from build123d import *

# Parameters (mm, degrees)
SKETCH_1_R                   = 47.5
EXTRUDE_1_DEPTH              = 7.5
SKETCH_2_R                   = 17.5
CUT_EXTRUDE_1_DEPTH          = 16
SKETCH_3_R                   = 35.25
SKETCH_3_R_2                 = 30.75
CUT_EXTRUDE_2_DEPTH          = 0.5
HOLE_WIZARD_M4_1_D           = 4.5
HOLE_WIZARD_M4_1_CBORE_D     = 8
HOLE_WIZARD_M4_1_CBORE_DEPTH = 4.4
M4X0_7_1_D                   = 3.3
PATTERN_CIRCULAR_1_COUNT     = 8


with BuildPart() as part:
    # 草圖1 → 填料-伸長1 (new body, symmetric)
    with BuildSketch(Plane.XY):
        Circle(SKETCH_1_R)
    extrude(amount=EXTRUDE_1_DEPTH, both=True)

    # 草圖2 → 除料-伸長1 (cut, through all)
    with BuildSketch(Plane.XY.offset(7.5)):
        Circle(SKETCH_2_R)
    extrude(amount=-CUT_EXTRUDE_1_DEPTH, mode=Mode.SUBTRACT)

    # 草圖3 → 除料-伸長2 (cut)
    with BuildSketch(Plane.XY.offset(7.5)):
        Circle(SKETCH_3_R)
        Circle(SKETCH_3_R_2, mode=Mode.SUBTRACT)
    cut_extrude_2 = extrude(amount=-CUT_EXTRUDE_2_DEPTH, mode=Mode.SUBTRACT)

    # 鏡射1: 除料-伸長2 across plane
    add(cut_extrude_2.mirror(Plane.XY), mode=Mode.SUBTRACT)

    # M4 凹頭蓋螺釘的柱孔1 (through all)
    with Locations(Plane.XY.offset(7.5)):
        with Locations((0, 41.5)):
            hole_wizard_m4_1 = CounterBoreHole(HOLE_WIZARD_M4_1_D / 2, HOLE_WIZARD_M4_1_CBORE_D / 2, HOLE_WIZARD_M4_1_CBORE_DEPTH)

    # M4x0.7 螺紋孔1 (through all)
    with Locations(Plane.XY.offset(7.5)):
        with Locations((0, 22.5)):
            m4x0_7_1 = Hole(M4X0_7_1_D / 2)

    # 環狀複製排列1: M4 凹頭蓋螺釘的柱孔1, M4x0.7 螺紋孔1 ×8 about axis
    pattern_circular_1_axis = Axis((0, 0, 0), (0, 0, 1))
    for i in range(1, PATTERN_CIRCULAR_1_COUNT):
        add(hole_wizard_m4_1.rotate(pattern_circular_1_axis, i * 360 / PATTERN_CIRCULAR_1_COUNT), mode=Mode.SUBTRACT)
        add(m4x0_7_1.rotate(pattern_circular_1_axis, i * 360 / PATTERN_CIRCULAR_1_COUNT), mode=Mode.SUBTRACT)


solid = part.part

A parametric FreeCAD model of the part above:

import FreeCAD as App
import Part
import Sketcher
from FreeCAD import Vector
Q = App.Units.Quantity

doc = App.newDocument("Part")
body = doc.addObject("PartDesign::Body", "Body")

# Sketch on XY plane
sketch1 = doc.addObject("Sketcher::SketchObject", "Sketch")
body.addObject(sketch1)
sketch1.AttachmentSupport = (doc.XY_Plane, [""])
sketch1.MapMode = "FlatFace"
sketch1.addGeometry(Part.Circle(Vector(0, 0, 0), Vector(0, 0, 1), 48), False)
sketch1.addConstraint([
    Sketcher.Constraint("Coincident", 0, 3, -1, 1),
    Sketcher.Constraint("Diameter", 0, Q("95 mm")),
])
pad1 = doc.addObject("PartDesign::Pad", "Pad")
body.addObject(pad1)
pad1.Profile = sketch1
pad1.Length = 15
pad1.Midplane = True

# Sketch on XY plane
sketch2 = doc.addObject("Sketcher::SketchObject", "Sketch001")
body.addObject(sketch2)
sketch2.AttachmentSupport = (doc.XY_Plane, [""])
sketch2.MapMode = "FlatFace"
sketch2.AttachmentOffset = App.Placement(Vector(0, 0, 7.5), App.Rotation())
sketch2.addGeometry(Part.Circle(Vector(0, 0, 0), Vector(0, 0, 1), 18), False)
sketch2.addConstraint([
    Sketcher.Constraint("Coincident", 0, 3, -1, 1),
    Sketcher.Constraint("Diameter", 0, Q("35 mm")),
])
pocket1 = doc.addObject("PartDesign::Pocket", "Pocket")
body.addObject(pocket1)
pocket1.Profile = sketch2
pocket1.Type = "ThroughAll"

# Sketch on XY plane
sketch3 = doc.addObject("Sketcher::SketchObject", "Sketch002")
body.addObject(sketch3)
sketch3.AttachmentSupport = (doc.XY_Plane, [""])
sketch3.MapMode = "FlatFace"
sketch3.AttachmentOffset = App.Placement(Vector(0, 0, 7.5), App.Rotation())
sketch3.addGeometry([
    Part.Circle(Vector(0, 0, 0), Vector(0, 0, 1), 35),
    Part.Circle(Vector(0, 0, 0), Vector(0, 0, 1), 31),
], False)
sketch3.addConstraint([
    Sketcher.Constraint("Coincident", 0, 3, -1, 1),
    Sketcher.Constraint("Coincident", 1, 3, -1, 1),
    Sketcher.Constraint("Diameter", 0, Q("70.5 mm")),
    Sketcher.Constraint("Diameter", 1, Q("61.5 mm")),
])
pocket2 = doc.addObject("PartDesign::Pocket", "Pocket001")
body.addObject(pocket2)
pocket2.Profile = sketch3
pocket2.Length = 0.5
doc.recompute()

mirrored = doc.addObject("PartDesign::Mirrored", "Mirrored")
body.addObject(mirrored)
mirrored.Originals = [pocket2]
mirrored.MirrorPlane = (doc.XY_Plane, [""])
body.Tip = mirrored

# Sketch on XY plane
sketch4 = doc.addObject("Sketcher::SketchObject", "Sketch003")
body.addObject(sketch4)
sketch4.AttachmentSupport = (doc.XY_Plane, [""])
sketch4.MapMode = "FlatFace"
sketch4.AttachmentOffset = App.Placement(Vector(0, 0, 7.5), App.Rotation())
sketch4.addGeometry(Part.Circle(Vector(0, 41.5, 0), Vector(0, 0, 1), 2.2), False)
sketch4.addConstraint([
    Sketcher.Constraint("PointOnObject", 0, 3, -2),
    Sketcher.Constraint("Diameter", 0, Q("4.5 mm")),
    Sketcher.Constraint("DistanceY", -1, 1, 0, 3, Q("41.5 mm")),
])
doc.recompute()
hole = doc.addObject("PartDesign::Hole", "Hole")
body.addObject(hole)
hole.Profile = sketch4
hole.ThreadType = "None"
hole.Diameter = 4.5
hole.DepthType = "ThroughAll"
hole.HoleCutType = "Counterbore"
hole.HoleCutDiameter = 8
hole.HoleCutDepth = 4.4

# Sketch on XY plane
sketch5 = doc.addObject("Sketcher::SketchObject", "Sketch004")
body.addObject(sketch5)
sketch5.AttachmentSupport = (doc.XY_Plane, [""])
sketch5.MapMode = "FlatFace"
sketch5.AttachmentOffset = App.Placement(Vector(0, 0, 7.5), App.Rotation())
sketch5.addGeometry(Part.Circle(Vector(0, 22.5, 0), Vector(0, 0, 1), 1.6), False)
sketch5.addConstraint([
    Sketcher.Constraint("PointOnObject", 0, 3, -2),
    Sketcher.Constraint("Diameter", 0, Q("3.3 mm")),
    Sketcher.Constraint("DistanceY", -1, 1, 0, 3, Q("22.5 mm")),
])
doc.recompute()
hole2 = doc.addObject("PartDesign::Hole", "Hole001")
body.addObject(hole2)
hole2.Profile = sketch5
hole2.ThreadType = "None"
hole2.Diameter = 3.3
hole2.DepthType = "ThroughAll"
doc.recompute()

polarpattern = doc.addObject("PartDesign::PolarPattern", "PolarPattern")
body.addObject(polarpattern)
polarpattern.Originals = [hole, hole2]
polarpattern.Axis = (doc.Z_Axis, [""])
polarpattern.Angle = 360
polarpattern.Occurrences = 8
body.Tip = polarpattern

doc.recompute()
